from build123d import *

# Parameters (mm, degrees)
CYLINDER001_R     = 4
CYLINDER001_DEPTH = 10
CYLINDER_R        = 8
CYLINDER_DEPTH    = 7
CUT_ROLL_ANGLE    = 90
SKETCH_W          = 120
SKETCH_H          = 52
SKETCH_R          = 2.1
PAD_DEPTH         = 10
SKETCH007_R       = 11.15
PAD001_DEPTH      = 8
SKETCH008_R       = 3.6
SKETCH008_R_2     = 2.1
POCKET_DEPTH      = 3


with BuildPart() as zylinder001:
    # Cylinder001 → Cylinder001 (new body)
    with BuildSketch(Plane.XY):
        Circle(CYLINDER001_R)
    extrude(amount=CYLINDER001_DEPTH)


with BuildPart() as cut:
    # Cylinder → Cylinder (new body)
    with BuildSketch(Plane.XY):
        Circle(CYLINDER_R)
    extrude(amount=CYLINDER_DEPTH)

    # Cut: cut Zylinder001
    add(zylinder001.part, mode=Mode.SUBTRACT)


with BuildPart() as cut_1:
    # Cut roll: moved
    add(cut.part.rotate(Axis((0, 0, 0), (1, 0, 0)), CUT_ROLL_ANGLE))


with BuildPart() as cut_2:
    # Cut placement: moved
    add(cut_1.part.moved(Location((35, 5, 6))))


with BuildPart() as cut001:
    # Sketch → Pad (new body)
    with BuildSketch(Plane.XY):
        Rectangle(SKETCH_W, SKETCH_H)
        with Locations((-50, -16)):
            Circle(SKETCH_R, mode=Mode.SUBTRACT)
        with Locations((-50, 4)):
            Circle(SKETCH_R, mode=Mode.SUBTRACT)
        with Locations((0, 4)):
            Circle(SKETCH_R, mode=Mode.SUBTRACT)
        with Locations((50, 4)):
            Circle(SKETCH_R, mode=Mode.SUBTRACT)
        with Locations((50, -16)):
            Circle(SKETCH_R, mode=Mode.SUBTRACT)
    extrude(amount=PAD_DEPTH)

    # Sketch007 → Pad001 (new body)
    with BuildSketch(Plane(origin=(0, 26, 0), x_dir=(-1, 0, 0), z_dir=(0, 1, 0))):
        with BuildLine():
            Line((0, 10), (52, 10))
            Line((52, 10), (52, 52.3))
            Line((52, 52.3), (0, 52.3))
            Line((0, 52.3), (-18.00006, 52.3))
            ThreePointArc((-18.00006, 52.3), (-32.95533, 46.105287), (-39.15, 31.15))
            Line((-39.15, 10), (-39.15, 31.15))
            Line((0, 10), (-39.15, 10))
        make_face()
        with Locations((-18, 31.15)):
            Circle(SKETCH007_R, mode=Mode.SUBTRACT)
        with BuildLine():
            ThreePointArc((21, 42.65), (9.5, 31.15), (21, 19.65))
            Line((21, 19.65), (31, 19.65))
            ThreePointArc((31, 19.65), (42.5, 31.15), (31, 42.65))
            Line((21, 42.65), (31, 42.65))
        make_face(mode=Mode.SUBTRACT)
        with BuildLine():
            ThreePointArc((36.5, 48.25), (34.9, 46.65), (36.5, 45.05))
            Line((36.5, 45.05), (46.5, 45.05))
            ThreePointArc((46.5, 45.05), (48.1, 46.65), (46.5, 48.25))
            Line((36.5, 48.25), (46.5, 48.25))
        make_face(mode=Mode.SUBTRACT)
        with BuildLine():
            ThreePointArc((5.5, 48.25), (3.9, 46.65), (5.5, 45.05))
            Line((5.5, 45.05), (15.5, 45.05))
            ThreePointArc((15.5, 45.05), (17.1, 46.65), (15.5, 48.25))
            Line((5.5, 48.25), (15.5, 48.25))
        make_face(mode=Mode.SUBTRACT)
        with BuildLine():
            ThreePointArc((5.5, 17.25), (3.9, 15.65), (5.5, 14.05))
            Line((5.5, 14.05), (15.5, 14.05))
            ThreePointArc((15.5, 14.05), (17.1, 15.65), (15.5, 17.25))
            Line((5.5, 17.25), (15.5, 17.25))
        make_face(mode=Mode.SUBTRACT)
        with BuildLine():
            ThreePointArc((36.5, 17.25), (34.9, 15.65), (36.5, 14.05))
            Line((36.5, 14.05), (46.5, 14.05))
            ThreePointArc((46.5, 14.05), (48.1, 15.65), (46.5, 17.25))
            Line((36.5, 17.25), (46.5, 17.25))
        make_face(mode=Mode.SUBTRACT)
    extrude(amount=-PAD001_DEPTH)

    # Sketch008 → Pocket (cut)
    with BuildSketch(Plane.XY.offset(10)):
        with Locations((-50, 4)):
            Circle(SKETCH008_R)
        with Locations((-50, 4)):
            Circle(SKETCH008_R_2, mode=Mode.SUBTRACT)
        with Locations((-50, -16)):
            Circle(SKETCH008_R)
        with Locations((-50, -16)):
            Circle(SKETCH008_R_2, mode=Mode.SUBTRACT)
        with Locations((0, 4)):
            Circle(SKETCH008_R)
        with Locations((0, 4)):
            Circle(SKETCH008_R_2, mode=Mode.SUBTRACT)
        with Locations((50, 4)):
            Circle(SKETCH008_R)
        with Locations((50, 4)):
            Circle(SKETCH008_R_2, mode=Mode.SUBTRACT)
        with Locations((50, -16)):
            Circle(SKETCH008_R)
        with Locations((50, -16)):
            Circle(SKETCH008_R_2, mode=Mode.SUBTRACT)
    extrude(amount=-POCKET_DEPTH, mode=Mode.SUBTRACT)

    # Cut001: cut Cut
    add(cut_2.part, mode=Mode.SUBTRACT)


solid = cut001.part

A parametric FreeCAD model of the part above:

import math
import FreeCAD as App
import Part
import Sketcher
from FreeCAD import Vector

doc = App.newDocument("Part")
body = doc.addObject("PartDesign::Body", "Body")

# Sketch on XY plane
sketch1 = body.newObject("Sketcher::SketchObject", "Sketch")
sketch1.AttachmentSupport = (doc.getObject("XY_Plane"), [""])
sketch1.MapMode = "FlatFace"
sketch1.addGeometry(Part.Circle(Vector(0, 0, 0), Vector(0, 0, 1), 4), False)
sketch1.addConstraint(Sketcher.Constraint("Coincident", 0, 3, -1, 1))
sketch1.addConstraint(Sketcher.Constraint("Diameter", 0, 8.0))
pad1 = body.newObject("PartDesign::Pad", "Pad")
pad1.Profile = sketch1
pad1.Length = 10
body2 = doc.addObject("PartDesign::Body", "Body001")

# Sketch on XY plane
sketch2 = body2.newObject("Sketcher::SketchObject", "Sketch001")
sketch2.AttachmentSupport = (doc.getObject("XY_Plane001"), [""])
sketch2.MapMode = "FlatFace"
sketch2.addGeometry(Part.Circle(Vector(0, 0, 0), Vector(0, 0, 1), 8), False)
sketch2.addConstraint(Sketcher.Constraint("Coincident", 0, 3, -1, 1))
sketch2.addConstraint(Sketcher.Constraint("Diameter", 0, 16.0))
pad2 = body2.newObject("PartDesign::Pad", "Pad001")
pad2.Profile = sketch2
pad2.Length = 7
doc.recompute()

boolean = body2.newObject("PartDesign::Boolean", "Boolean")
boolean.Type = "Cut"
boolean.addObjects([body])
body3 = doc.addObject("PartDesign::Body", "Body002")
doc.recompute()

body2.Placement = App.Placement(Vector(0, 0, 0), App.Rotation(Vector(1, 0, 0), 90))
boolean2 = body3.newObject("PartDesign::Boolean", "Boolean001")
boolean2.Type = "Fuse"
boolean2.addObjects([body2])
body4 = doc.addObject("PartDesign::Body", "Body003")
doc.recompute()

body3.Placement = App.Placement(Vector(35, 5, 6), App.Rotation(Vector(0, 0, 1), 0))
boolean3 = body4.newObject("PartDesign::Boolean", "Boolean002")
boolean3.Type = "Fuse"
boolean3.addObjects([body3])
body5 = doc.addObject("PartDesign::Body", "Body004")

# Sketch on XY plane
sketch3 = body5.newObject("Sketcher::SketchObject", "Sketch002")
sketch3.AttachmentSupport = (doc.getObject("XY_Plane004"), [""])
sketch3.MapMode = "FlatFace"
sketch3.addGeometry(Part.LineSegment(Vector(-60, 26, 0), Vector(-60, -26, 0)), False)
sketch3.addGeometry(Part.LineSegment(Vector(-60, -26, 0), Vector(60, -26, 0)), False)
sketch3.addGeometry(Part.LineSegment(Vector(60, -26, 0), Vector(60, 26, 0)), False)
sketch3.addGeometry(Part.LineSegment(Vector(60, 26, 0), Vector(-60, 26, 0)), False)
sketch3.addGeometry(Part.Circle(Vector(-50, -16, 0), Vector(0, 0, 1), 2.1), False)
sketch3.addGeometry(Part.Circle(Vector(50, -16, 0), Vector(0, 0, 1), 2.1), False)
sketch3.addGeometry(Part.Circle(Vector(-50, 4, 0), Vector(0, 0, 1), 2.1), False)
sketch3.addGeometry(Part.Circle(Vector(0, 4, 0), Vector(0, 0, 1), 2.1), False)
sketch3.addGeometry(Part.Circle(Vector(50, 4, 0), Vector(0, 0, 1), 2.1), False)
sketch3.addConstraint(Sketcher.Constraint("Coincident", 0, 2, 1, 1))
sketch3.addConstraint(Sketcher.Constraint("Coincident", 1, 2, 2, 1))
sketch3.addConstraint(Sketcher.Constraint("Coincident", 2, 2, 3, 1))
sketch3.addConstraint(Sketcher.Constraint("Coincident", 3, 2, 0, 1))
sketch3.addConstraint(Sketcher.Constraint("Vertical", 0))
sketch3.addConstraint(Sketcher.Constraint("Horizontal", 1))
sketch3.addConstraint(Sketcher.Constraint("Vertical", 2))
sketch3.addConstraint(Sketcher.Constraint("Horizontal", 3))
sketch3.addConstraint(Sketcher.Constraint("Equal", 4, 5))
sketch3.addConstraint(Sketcher.Constraint("Equal", 5, 6))
sketch3.addConstraint(Sketcher.Constraint("Equal", 6, 7))
sketch3.addConstraint(Sketcher.Constraint("Equal", 7, 8))
sketch3.addConstraint(Sketcher.Constraint("Symmetric", 0, 2, 2, 2, -1, 1))
sketch3.addConstraint(Sketcher.Constraint("Symmetric", 4, 3, 5, 3, -2))
sketch3.addConstraint(Sketcher.Constraint("Symmetric", 6, 3, 8, 3, -2))
sketch3.addConstraint(Sketcher.Constraint("PointOnObject", 7, 3, -2))
sketch3.addConstraint(Sketcher.Constraint("Horizontal", 6, 3, 7, 3))
sketch3.addConstraint(Sketcher.Constraint("Vertical", 4, 3, 6, 3))
sketch3.addConstraint(Sketcher.Constraint("Diameter", 4, 4.2))
sketch3.addConstraint(Sketcher.Constraint("DistanceX", 1, 1, 1, 2, 120.0))
sketch3.addConstraint(Sketcher.Constraint("DistanceY", 0, 2, 0, 1, 52.0))
sketch3.addConstraint(Sketcher.Constraint("DistanceX", 4, 3, -1, 1, 50.0))
sketch3.addConstraint(Sketcher.Constraint("DistanceY", 4, 3, -1, 1, 16.0))
sketch3.addConstraint(Sketcher.Constraint("DistanceY", -1, 1, 6, 3, 4.0))
pad3 = body5.newObject("PartDesign::Pad", "Pad002")
pad3.Profile = sketch3
pad3.Length = 10

# Sketch on XZ plane
sketch4 = body5.newObject("Sketcher::SketchObject", "Sketch003")
sketch4.AttachmentSupport = (doc.getObject("XZ_Plane004"), [""])
sketch4.MapMode = "FlatFace"
sketch4.AttachmentOffset = App.Placement(Vector(0, 0, -26), App.Rotation())
sketch4.addGeometry(Part.LineSegment(Vector(-52, 10, 0), Vector(-52, 52.3, 0)), False)
sketch4.addGeometry(Part.LineSegment(Vector(-52, 52.3, 0), Vector(18, 52.3, 0)), False)
sketch4.addGeometry(Part.ArcOfCircle(Part.Circle(Vector(18, 31.2, 0), Vector(0, 0, 1), 21.1), math.radians(0), math.radians(90)), False)
sketch4.addGeometry(Part.LineSegment(Vector(39.1, 31.1, 0), Vector(39.1, 10, 0)), False)
sketch4.addGeometry(Part.LineSegment(Vector(39.1, 10, 0), Vector(-52, 10, 0)), False)
sketch4.addGeometry(Part.Circle(Vector(18, 31.1, 0), Vector(0, 0, 1), 11.2), False)
sketch4.addGeometry(Part.ArcOfCircle(Part.Circle(Vector(-5.5, 15.7, 0), Vector(0, 0, 1), 1.6), math.radians(-90), math.radians(90)), False)
sketch4.addGeometry(Part.LineSegment(Vector(-5.5, 17.2, 0), Vector(-15.5, 17.2, 0)), False)
sketch4.addGeometry(Part.ArcOfCircle(Part.Circle(Vector(-15.5, 15.7, 0), Vector(0, 0, 1), 1.6), math.radians(90), math.radians(270)), False)
sketch4.addGeometry(Part.LineSegment(Vector(-15.5, 14.1, 0), Vector(-5.5, 14.1, 0)), False)
sketch4.addGeometry(Part.ArcOfCircle(Part.Circle(Vector(-36.5, 15.7, 0), Vector(0, 0, 1), 1.6), math.radians(-90), math.radians(90)), False)
sketch4.addGeometry(Part.LineSegment(Vector(-36.5, 17.2, 0), Vector(-46.5, 17.2, 0)), False)
sketch4.addGeometry(Part.ArcOfCircle(Part.Circle(Vector(-46.5, 15.7, 0), Vector(0, 0, 1), 1.6), math.radians(90), math.radians(270)), False)
sketch4.addGeometry(Part.LineSegment(Vector(-46.5, 14.1, 0), Vector(-36.5, 14.1, 0)), False)
sketch4.addGeometry(Part.ArcOfCircle(Part.Circle(Vector(-21, 31.1, 0), Vector(0, 0, 1), 11.5), math.radians(-90), math.radians(90)), False)
sketch4.addGeometry(Part.LineSegment(Vector(-21, 42.6, 0), Vector(-31, 42.6, 0)), False)
sketch4.addGeometry(Part.ArcOfCircle(Part.Circle(Vector(-31, 31.1, 0), Vector(0, 0, 1), 11.5), math.radians(90), math.radians(270)), False)
sketch4.addGeometry(Part.LineSegment(Vector(-31, 19.6, 0), Vector(-21, 19.6, 0)), False)
sketch4.addGeometry(Part.ArcOfCircle(Part.Circle(Vector(-5.5, 46.6, 0), Vector(0, 0, 1), 1.6), math.radians(-90), math.radians(90)), False)
sketch4.addGeometry(Part.LineSegment(Vector(-5.5, 48.2, 0), Vector(-15.5, 48.2, 0)), False)
sketch4.addGeometry(Part.ArcOfCircle(Part.Circle(Vector(-15.5, 46.6, 0), Vector(0, 0, 1), 1.6), math.radians(90), math.radians(270)), False)
sketch4.addGeometry(Part.LineSegment(Vector(-15.5, 45, 0), Vector(-5.5, 45, 0)), False)
sketch4.addGeometry(Part.ArcOfCircle(Part.Circle(Vector(-36.5, 46.6, 0), Vector(0, 0, 1), 1.6), math.radians(-90), math.radians(90)), False)
sketch4.addGeometry(Part.LineSegment(Vector(-36.5, 48.2, 0), Vector(-46.5, 48.2, 0)), False)
sketch4.addGeometry(Part.ArcOfCircle(Part.Circle(Vector(-46.5, 46.6, 0), Vector(0, 0, 1), 1.6), math.radians(90), math.radians(270)), False)
sketch4.addGeometry(Part.LineSegment(Vector(-46.5, 45, 0), Vector(-36.5, 45, 0)), False)
sketch4.addConstraint(Sketcher.Constraint("Coincident", 0, 2, 1, 1))
sketch4.addConstraint(Sketcher.Constraint("Coincident", 1, 2, 2, 2))
sketch4.addConstraint(Sketcher.Constraint("Tangent", 2, 1, 3, 1))
sketch4.addConstraint(Sketcher.Constraint("Coincident", 3, 2, 4, 1))
sketch4.addConstraint(Sketcher.Constraint("Coincident", 4, 2, 0, 1))
sketch4.addConstraint(Sketcher.Constraint("Tangent", 6, 2, 7, 1))
sketch4.addConstraint(Sketcher.Constraint("Tangent", 7, 2, 8, 1))
sketch4.addConstraint(Sketcher.Constraint("Tangent", 8, 2, 9, 1))
sketch4.addConstraint(Sketcher.Constraint("Tangent", 9, 2, 6, 1))
sketch4.addConstraint(Sketcher.Constraint("Tangent", 10, 2, 11, 1))
sketch4.addConstraint(Sketcher.Constraint("Tangent", 11, 2, 12, 1))
sketch4.addConstraint(Sketcher.Constraint("Tangent", 12, 2, 13, 1))
sketch4.addConstraint(Sketcher.Constraint("Tangent", 13, 2, 10, 1))
sketch4.addConstraint(Sketcher.Constraint("Tangent", 14, 2, 15, 1))
sketch4.addConstraint(Sketcher.Constraint("Tangent", 15, 2, 16, 1))
sketch4.addConstraint(Sketcher.Constraint("Tangent", 16, 2, 17, 1))
sketch4.addConstraint(Sketcher.Constraint("Tangent", 17, 2, 14, 1))
sketch4.addConstraint(Sketcher.Constraint("Tangent", 18, 2, 19, 1))
sketch4.addConstraint(Sketcher.Constraint("Tangent", 19, 2, 20, 1))
sketch4.addConstraint(Sketcher.Constraint("Tangent", 20, 2, 21, 1))
sketch4.addConstraint(Sketcher.Constraint("Tangent", 21, 2, 18, 1))
sketch4.addConstraint(Sketcher.Constraint("Tangent", 22, 2, 23, 1))
sketch4.addConstraint(Sketcher.Constraint("Tangent", 23, 2, 24, 1))
sketch4.addConstraint(Sketcher.Constraint("Tangent", 24, 2, 25, 1))
sketch4.addConstraint(Sketcher.Constraint("Tangent", 25, 2, 22, 1))
sketch4.addConstraint(Sketcher.Constraint("Vertical", 0))
sketch4.addConstraint(Sketcher.Constraint("Horizontal", 1))
sketch4.addConstraint(Sketcher.Constraint("Vertical", 3))
sketch4.addConstraint(Sketcher.Constraint("Horizontal", 4))
sketch4.addConstraint(Sketcher.Constraint("Horizontal", 7))
sketch4.addConstraint(Sketcher.Constraint("Horizontal", 9))
sketch4.addConstraint(Sketcher.Constraint("Horizontal", 11))
sketch4.addConstraint(Sketcher.Constraint("Horizontal", 13))
sketch4.addConstraint(Sketcher.Constraint("Horizontal", 15))
sketch4.addConstraint(Sketcher.Constraint("Horizontal", 17))
sketch4.addConstraint(Sketcher.Constraint("Horizontal", 19))
sketch4.addConstraint(Sketcher.Constraint("Horizontal", 21))
sketch4.addConstraint(Sketcher.Constraint("Horizontal", 23))
sketch4.addConstraint(Sketcher.Constraint("Horizontal", 25))
sketch4.addConstraint(Sketcher.Constraint("Coincident", 5, 3, 2, 3))
sketch4.addConstraint(Sketcher.Constraint("Equal", 8, 10))
sketch4.addConstraint(Sketcher.Constraint("Equal", 12, 18))
sketch4.addConstraint(Sketcher.Constraint("Equal", 20, 22))
sketch4.addConstraint(Sketcher.Constraint("Horizontal", 8, 3, 10, 3))
sketch4.addConstraint(Sketcher.Constraint("Horizontal", 5, 3, 14, 3))
sketch4.addConstraint(Sketcher.Constraint("Horizontal", 20, 3, 22, 3))
sketch4.addConstraint(Sketcher.Constraint("Vertical", 6, 3, 18, 3))
sketch4.addConstraint(Sketcher.Constraint("Vertical", 8, 3, 20, 3))
sketch4.addConstraint(Sketcher.Constraint("Vertical", 10, 3, 22, 3))
sketch4.addConstraint(Sketcher.Constraint("Vertical", 12, 3, 24, 3))
sketch4.addConstraint(Sketcher.Constraint("Equal", 9, 11))
sketch4.addConstraint(Sketcher.Constraint("Equal", 13, 15))
sketch4.addConstraint(Sketcher.Constraint("Diameter", 5, 22.3))
sketch4.addConstraint(Sketcher.Constraint("Radius", 6, 1.6))
sketch4.addConstraint(Sketcher.Constraint("Radius", 14, 11.5))
sketch4.addConstraint(Sketcher.Constraint("DistanceX", 7, 2, 7, 1, 10.0))
sketch4.addConstraint(Sketcher.Constraint("Radius", 2, 21.15))
sketch4.addConstraint(Sketcher.Constraint("DistanceY", 0, 1, 0, 2, 42.3))
sketch4.addConstraint(Sketcher.Constraint("DistanceX", -1, 1, 2, 3, 18.0))
sketch4.addConstraint(Sketcher.Constraint("DistanceX", 14, 3, -1, 1, 21.0))
sketch4.addConstraint(Sketcher.Constraint("DistanceX", 0, 2, -1, 1, 52.0))
sketch4.addConstraint(Sketcher.Constraint("DistanceY", -1, 1, 3, 2, 10.0))
sketch4.addConstraint(Sketcher.Constraint("DistanceX", 10, 3, 8, 3, 21.0))
sketch4.addConstraint(Sketcher.Constraint("DistanceY", 6, 3, 18, 3, 31.0))
sketch4.addConstraint(Sketcher.Constraint("DistanceY", 14, 2, 20, 3, 4.0))
sketch4.addConstraint(Sketcher.Constraint("DistanceX", 6, 3, -1, 1, 5.5))
sketch4.addConstraint(Sketcher.Constraint("DistanceX", 1, 1, 1, 2, 70.00006))
pad4 = body5.newObject("PartDesign::Pad", "Pad003")
pad4.Profile = sketch4
pad4.Length = 8

# Sketch on XY plane
sketch5 = body5.newObject("Sketcher::SketchObject", "Sketch004")
sketch5.AttachmentSupport = (doc.getObject("XY_Plane004"), [""])
sketch5.MapMode = "FlatFace"
sketch5.AttachmentOffset = App.Placement(Vector(0, 0, 10), App.Rotation())
sketch5.addGeometry(Part.Circle(Vector(-50, 4, 0), Vector(0, 0, 1), 3.6), False)
sketch5.addGeometry(Part.Circle(Vector(-50, 4, 0), Vector(0, 0, 1), 2.1), False)
sketch5.addGeometry(Part.Circle(Vector(-50, -16, 0), Vector(0, 0, 1), 3.6), False)
sketch5.addGeometry(Part.Circle(Vector(-50, -16, 0), Vector(0, 0, 1), 2.1), False)
sketch5.addGeometry(Part.Circle(Vector(0, 4, 0), Vector(0, 0, 1), 3.6), False)
sketch5.addGeometry(Part.Circle(Vector(0, 4, 0), Vector(0, 0, 1), 2.1), False)
sketch5.addGeometry(Part.Circle(Vector(50, 4, 0), Vector(0, 0, 1), 3.6), False)
sketch5.addGeometry(Part.Circle(Vector(50, 4, 0), Vector(0, 0, 1), 2.1), False)
sketch5.addGeometry(Part.Circle(Vector(50, -16, 0), Vector(0, 0, 1), 3.6), False)
sketch5.addGeometry(Part.Circle(Vector(50, -16, 0), Vector(0, 0, 1), 2.1), False)
sketch5.addConstraint(Sketcher.Constraint("Coincident", 1, 3, 0, 3))
sketch5.addConstraint(Sketcher.Constraint("Coincident", 3, 3, 2, 3))
sketch5.addConstraint(Sketcher.Constraint("Coincident", 5, 3, 4, 3))
sketch5.addConstraint(Sketcher.Constraint("Coincident", 7, 3, 6, 3))
sketch5.addConstraint(Sketcher.Constraint("Coincident", 9, 3, 8, 3))
sketch5.addConstraint(Sketcher.Constraint("Equal", 0, 2))
sketch5.addConstraint(Sketcher.Constraint("Equal", 1, 3))
sketch5.addConstraint(Sketcher.Constraint("Equal", 2, 4))
sketch5.addConstraint(Sketcher.Constraint("Equal", 3, 5))
sketch5.addConstraint(Sketcher.Constraint("Equal", 4, 6))
sketch5.addConstraint(Sketcher.Constraint("Equal", 5, 7))
sketch5.addConstraint(Sketcher.Constraint("Equal", 6, 8))
sketch5.addConstraint(Sketcher.Constraint("Equal", 7, 9))
sketch5.addConstraint(Sketcher.Constraint("Symmetric", 0, 3, 6, 3, -2))
sketch5.addConstraint(Sketcher.Constraint("Symmetric", 2, 3, 8, 3, -2))
sketch5.addConstraint(Sketcher.Constraint("PointOnObject", 4, 3, -2))
sketch5.addConstraint(Sketcher.Constraint("Horizontal", 1, 3, 4, 3))
sketch5.addConstraint(Sketcher.Constraint("Vertical", 1, 3, 2, 3))
sketch5.addConstraint(Sketcher.Constraint("Diameter", 0, 7.2))
sketch5.addConstraint(Sketcher.Constraint("Diameter", 1, 4.2))
sketch5.addConstraint(Sketcher.Constraint("DistanceX", 0, 3, -1, 1, 50.0))
sketch5.addConstraint(Sketcher.Constraint("DistanceY", -1, 1, 0, 3, 4.0))
sketch5.addConstraint(Sketcher.Constraint("DistanceY", 2, 3, -1, 1, 16.0))
pocket1 = body5.newObject("PartDesign::Pocket", "Pocket")
pocket1.Profile = sketch5
pocket1.Length = 3
doc.recompute()

boolean4 = body5.newObject("PartDesign::Boolean", "Boolean003")
boolean4.Type = "Cut"
boolean4.addObjects([body4])

doc.recompute()
